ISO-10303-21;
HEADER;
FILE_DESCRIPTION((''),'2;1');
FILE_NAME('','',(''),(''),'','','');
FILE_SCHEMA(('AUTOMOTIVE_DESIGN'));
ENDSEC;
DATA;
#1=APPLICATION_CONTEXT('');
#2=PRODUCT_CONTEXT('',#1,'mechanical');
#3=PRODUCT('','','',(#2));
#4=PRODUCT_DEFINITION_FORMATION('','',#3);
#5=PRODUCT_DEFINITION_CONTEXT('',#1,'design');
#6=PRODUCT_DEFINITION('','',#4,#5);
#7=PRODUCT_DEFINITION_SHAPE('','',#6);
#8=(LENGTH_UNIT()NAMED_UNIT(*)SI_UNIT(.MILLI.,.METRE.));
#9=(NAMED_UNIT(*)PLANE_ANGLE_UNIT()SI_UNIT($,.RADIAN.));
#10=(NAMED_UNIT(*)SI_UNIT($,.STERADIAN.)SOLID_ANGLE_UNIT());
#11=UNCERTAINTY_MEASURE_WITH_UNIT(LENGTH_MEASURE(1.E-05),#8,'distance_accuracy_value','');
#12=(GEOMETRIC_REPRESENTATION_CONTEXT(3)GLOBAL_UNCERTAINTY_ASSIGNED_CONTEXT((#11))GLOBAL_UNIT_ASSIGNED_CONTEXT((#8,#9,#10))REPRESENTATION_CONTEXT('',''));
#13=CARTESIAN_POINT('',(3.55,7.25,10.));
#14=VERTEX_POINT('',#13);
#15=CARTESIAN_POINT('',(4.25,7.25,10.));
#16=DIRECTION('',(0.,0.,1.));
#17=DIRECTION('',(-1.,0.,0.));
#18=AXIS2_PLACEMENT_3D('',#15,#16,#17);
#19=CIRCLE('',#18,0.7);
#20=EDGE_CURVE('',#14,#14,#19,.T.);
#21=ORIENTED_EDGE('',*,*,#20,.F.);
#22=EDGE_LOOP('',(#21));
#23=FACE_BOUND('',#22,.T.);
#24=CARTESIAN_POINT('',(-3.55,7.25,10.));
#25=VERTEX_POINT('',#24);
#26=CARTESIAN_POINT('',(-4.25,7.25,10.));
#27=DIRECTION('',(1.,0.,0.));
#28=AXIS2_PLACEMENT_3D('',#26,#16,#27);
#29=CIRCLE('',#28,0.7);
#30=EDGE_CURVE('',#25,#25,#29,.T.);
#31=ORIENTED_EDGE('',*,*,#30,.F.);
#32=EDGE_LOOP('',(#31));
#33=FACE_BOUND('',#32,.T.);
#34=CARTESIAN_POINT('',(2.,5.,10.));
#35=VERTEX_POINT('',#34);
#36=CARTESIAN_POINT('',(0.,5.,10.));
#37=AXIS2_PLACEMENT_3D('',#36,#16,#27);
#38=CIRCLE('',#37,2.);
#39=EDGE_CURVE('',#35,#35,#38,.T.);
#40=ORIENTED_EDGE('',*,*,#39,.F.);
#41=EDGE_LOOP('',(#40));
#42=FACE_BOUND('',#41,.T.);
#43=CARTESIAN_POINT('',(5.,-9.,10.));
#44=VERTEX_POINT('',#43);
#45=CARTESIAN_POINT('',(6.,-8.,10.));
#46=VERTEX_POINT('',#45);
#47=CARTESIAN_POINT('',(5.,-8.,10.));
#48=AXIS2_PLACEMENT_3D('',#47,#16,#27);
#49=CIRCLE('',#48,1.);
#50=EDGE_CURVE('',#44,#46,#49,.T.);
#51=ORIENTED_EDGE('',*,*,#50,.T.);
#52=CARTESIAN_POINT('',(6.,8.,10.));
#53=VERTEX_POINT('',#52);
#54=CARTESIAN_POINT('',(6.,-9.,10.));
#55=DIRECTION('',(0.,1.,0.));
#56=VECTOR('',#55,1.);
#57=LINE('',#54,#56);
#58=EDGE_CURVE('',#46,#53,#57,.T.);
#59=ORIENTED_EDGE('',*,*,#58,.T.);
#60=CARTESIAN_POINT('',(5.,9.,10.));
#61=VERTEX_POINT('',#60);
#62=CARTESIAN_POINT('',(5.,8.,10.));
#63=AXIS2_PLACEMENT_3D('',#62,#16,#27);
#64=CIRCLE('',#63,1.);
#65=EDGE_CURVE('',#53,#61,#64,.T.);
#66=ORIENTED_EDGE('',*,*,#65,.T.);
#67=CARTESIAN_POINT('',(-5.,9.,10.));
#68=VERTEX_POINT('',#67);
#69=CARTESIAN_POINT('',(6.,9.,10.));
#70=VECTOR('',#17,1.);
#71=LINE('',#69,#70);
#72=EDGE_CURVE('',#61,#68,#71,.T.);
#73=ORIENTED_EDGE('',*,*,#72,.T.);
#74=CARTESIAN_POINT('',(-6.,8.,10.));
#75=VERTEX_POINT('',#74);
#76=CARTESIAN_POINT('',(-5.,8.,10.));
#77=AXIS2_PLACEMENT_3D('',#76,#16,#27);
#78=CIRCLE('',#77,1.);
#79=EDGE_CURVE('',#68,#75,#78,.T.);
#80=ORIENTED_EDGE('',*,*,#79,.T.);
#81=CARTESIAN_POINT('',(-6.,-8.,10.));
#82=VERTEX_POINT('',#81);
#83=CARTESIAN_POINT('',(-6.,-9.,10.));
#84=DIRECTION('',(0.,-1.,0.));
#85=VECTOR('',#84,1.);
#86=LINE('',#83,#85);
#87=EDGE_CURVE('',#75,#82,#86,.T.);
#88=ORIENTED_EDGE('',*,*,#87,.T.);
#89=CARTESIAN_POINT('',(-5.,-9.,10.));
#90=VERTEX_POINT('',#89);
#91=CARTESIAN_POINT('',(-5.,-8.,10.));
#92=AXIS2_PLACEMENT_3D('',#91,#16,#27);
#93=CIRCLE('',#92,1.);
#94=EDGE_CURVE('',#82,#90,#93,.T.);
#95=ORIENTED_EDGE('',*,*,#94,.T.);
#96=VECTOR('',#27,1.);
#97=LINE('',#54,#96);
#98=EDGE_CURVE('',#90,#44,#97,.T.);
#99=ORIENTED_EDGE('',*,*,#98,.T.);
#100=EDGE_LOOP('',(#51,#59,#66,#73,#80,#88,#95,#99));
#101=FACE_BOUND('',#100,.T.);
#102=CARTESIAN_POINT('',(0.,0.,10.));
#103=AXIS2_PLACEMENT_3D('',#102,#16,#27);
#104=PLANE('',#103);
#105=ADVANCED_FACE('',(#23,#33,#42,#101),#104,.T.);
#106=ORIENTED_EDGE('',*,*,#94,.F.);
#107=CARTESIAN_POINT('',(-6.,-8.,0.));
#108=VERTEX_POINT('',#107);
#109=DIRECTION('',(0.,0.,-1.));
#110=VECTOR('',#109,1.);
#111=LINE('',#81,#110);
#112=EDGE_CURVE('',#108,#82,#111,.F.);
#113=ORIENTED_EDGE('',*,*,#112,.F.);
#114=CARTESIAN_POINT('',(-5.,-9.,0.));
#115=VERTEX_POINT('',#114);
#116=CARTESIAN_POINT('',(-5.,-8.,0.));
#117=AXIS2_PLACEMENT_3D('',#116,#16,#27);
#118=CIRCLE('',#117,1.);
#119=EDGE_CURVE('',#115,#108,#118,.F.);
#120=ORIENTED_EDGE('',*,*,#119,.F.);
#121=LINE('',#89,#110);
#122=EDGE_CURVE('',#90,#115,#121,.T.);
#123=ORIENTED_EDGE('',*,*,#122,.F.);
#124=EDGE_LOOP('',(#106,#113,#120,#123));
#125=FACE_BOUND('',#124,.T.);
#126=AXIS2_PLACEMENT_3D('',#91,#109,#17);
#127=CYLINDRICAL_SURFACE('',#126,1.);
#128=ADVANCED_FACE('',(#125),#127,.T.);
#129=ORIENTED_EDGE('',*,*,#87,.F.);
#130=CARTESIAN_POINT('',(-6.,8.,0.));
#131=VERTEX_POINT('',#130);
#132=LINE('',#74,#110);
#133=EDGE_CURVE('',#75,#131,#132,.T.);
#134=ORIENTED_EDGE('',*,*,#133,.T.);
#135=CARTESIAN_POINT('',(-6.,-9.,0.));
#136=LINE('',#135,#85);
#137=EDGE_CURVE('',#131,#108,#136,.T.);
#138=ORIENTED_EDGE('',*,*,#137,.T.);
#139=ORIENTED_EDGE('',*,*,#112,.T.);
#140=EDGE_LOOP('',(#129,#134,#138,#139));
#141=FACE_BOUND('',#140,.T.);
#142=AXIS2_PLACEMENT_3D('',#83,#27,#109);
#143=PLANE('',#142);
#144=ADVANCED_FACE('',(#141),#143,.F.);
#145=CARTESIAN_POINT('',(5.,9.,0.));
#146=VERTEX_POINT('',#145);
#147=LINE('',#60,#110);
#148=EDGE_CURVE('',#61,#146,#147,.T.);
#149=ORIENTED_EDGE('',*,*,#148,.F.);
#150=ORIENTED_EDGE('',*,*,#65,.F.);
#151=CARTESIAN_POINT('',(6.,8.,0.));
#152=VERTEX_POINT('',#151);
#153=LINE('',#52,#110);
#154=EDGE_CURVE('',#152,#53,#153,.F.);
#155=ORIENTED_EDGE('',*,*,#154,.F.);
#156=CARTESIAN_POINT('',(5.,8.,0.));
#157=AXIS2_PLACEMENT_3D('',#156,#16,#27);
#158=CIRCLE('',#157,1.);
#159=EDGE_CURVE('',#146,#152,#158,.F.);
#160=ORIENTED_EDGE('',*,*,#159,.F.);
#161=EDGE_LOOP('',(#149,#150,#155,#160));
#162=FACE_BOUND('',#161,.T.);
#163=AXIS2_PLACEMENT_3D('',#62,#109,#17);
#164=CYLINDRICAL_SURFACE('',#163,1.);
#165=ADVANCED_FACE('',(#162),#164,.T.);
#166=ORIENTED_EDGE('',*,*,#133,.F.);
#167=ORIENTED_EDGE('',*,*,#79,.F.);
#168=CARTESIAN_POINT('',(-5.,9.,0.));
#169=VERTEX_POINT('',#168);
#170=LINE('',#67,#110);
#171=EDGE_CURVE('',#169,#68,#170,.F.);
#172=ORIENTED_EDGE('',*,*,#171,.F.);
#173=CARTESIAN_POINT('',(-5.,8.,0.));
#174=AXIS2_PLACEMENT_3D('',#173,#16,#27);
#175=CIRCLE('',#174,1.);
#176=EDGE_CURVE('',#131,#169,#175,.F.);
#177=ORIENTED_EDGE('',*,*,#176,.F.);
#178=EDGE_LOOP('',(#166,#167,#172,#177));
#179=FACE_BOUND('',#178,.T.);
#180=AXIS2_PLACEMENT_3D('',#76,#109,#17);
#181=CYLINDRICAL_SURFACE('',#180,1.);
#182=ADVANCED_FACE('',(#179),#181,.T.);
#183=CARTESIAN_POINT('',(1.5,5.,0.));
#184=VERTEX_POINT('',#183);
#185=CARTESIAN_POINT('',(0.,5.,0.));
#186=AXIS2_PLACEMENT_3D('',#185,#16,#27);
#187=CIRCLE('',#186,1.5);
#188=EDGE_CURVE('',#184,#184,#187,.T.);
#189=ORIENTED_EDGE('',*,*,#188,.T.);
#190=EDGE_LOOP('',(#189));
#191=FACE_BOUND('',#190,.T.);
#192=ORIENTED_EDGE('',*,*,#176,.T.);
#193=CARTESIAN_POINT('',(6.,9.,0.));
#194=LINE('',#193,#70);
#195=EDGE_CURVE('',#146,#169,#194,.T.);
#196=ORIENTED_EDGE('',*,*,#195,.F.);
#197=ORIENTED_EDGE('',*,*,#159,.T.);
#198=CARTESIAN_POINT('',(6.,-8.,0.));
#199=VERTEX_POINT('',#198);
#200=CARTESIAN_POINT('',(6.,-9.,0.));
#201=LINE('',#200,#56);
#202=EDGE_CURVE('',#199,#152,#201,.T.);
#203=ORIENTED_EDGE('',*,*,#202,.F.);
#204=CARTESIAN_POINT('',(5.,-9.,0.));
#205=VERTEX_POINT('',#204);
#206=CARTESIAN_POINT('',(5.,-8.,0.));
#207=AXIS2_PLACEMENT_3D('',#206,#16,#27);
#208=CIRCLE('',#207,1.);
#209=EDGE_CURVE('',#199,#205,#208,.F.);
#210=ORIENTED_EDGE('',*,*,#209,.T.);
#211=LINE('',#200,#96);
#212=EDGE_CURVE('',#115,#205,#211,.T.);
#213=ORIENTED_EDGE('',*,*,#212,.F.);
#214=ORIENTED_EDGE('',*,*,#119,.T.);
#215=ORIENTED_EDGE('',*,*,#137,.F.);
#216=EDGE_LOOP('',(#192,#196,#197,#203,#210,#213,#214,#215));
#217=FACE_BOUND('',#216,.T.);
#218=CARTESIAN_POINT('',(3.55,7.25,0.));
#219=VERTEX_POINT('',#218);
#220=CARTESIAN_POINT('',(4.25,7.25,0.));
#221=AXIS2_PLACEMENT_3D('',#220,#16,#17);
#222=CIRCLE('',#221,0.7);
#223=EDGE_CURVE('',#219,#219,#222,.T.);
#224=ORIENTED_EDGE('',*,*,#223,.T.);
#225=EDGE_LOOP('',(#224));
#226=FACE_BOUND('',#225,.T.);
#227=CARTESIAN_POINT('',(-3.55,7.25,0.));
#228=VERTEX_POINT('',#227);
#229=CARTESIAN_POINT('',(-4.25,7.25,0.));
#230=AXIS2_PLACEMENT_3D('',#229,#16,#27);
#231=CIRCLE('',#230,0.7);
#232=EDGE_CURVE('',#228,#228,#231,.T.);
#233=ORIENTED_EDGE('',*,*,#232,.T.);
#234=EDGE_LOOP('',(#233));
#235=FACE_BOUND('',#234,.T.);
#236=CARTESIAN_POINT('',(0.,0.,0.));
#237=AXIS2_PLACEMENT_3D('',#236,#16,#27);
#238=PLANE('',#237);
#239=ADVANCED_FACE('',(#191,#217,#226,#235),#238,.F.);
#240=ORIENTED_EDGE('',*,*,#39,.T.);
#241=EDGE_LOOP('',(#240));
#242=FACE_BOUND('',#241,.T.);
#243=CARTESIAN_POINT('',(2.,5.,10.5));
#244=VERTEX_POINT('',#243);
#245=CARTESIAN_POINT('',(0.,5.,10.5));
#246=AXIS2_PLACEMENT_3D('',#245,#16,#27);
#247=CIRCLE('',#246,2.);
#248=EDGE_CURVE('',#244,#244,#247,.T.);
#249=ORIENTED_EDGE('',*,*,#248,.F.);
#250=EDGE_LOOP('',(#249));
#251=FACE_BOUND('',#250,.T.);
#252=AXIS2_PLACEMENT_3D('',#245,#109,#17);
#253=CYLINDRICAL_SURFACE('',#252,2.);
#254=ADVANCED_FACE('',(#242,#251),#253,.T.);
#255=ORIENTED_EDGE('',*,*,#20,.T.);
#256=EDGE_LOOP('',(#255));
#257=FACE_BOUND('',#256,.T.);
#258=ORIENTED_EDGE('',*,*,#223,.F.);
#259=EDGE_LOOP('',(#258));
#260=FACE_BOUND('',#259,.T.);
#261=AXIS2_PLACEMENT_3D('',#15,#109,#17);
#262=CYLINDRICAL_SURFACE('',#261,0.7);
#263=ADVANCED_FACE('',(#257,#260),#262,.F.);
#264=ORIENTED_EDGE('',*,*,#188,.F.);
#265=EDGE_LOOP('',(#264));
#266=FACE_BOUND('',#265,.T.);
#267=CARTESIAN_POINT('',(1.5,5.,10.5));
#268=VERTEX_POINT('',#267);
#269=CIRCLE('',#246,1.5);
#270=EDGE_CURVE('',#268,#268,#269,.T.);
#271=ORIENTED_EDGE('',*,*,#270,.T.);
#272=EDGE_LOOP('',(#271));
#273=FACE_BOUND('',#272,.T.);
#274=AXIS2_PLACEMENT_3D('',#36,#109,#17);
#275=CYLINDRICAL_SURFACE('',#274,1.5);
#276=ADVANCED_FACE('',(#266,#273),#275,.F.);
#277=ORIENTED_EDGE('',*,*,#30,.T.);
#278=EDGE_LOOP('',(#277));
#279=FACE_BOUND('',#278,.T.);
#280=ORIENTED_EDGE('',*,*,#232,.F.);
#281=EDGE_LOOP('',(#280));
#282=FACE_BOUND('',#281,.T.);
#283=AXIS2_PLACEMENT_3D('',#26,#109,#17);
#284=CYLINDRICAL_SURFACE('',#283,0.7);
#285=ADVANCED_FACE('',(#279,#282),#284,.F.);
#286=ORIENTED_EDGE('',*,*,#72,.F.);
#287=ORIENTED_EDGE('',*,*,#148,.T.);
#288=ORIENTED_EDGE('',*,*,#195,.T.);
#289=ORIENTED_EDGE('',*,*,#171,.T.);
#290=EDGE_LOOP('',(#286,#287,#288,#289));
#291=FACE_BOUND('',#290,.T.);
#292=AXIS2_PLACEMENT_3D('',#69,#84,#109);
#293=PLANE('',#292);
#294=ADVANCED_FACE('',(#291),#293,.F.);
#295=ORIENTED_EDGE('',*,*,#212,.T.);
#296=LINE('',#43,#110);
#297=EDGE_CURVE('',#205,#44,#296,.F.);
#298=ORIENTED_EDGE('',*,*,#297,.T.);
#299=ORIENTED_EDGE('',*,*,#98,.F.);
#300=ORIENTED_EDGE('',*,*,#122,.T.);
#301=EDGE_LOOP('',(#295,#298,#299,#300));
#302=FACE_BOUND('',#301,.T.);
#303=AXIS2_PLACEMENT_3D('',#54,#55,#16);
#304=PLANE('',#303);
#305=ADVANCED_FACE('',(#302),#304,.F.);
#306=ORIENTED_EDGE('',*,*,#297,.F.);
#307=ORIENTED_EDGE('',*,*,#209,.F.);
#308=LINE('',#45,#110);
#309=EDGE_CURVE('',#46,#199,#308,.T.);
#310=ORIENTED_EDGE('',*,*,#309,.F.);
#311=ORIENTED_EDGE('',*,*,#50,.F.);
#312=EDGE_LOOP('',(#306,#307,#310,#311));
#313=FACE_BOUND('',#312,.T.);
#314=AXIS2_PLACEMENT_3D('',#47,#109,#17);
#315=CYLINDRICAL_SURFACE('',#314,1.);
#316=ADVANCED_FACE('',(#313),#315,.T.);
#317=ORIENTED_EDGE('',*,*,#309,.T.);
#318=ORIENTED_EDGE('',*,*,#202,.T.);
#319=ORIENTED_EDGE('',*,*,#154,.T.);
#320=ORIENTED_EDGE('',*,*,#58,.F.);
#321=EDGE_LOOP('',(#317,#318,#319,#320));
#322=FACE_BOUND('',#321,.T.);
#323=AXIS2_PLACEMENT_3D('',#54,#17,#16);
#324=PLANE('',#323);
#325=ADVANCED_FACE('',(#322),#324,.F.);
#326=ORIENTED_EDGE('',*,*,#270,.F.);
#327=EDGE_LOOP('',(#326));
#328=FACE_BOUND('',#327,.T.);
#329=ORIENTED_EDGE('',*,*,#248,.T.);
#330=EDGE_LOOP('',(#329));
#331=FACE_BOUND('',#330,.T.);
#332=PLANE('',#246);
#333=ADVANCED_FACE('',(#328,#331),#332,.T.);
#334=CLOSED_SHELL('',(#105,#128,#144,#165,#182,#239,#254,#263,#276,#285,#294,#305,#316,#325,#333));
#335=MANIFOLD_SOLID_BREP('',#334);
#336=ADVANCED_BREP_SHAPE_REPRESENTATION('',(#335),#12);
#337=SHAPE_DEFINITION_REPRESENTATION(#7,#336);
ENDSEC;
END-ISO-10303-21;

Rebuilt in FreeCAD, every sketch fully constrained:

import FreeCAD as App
import Part
import Sketcher
from FreeCAD import Vector
Q = App.Units.Quantity


def edges_at(feature, points):
    """Names of the edges that pass closest to the given points."""
    edges = feature.Shape.Edges
    near = lambda p: min(range(len(edges)), key=lambda i: edges[i].distToShape(Part.Vertex(*p))[0])
    return sorted({f"Edge{near(p) + 1}" for p in points})

doc = App.newDocument("Part")
body = doc.addObject("PartDesign::Body", "Body")

# Sketch on XY plane
sketch1 = doc.addObject("Sketcher::SketchObject", "Sketch")
body.addObject(sketch1)
sketch1.AttachmentSupport = (doc.XY_Plane, [""])
sketch1.MapMode = "FlatFace"
sketch1.addGeometry([
    Part.LineSegment(Vector(-6, 9, 0), Vector(-6, -9, 0)),  # 0
    Part.LineSegment(Vector(-6, -9, 0), Vector(6, -9, 0)),  # 1
    Part.LineSegment(Vector(6, -9, 0), Vector(6, 9, 0)),  # 2
    Part.LineSegment(Vector(6, 9, 0), Vector(-6, 9, 0)),  # 3
    Part.Circle(Vector(0, 5, 0), Vector(0, 0, 1), 1.5),  # 4
    Part.Circle(Vector(-4.2, 7.2, 0), Vector(0, 0, 1), 0.7),  # 5
    Part.Circle(Vector(4.2, 7.2, 0), Vector(0, 0, 1), 0.7),  # 6
], False)
sketch1.addConstraint([
    Sketcher.Constraint("Coincident", 0, 2, 1, 1),
    Sketcher.Constraint("Coincident", 1, 2, 2, 1),
    Sketcher.Constraint("Coincident", 2, 2, 3, 1),
    Sketcher.Constraint("Coincident", 3, 2, 0, 1),
    Sketcher.Constraint("Vertical", 0),
    Sketcher.Constraint("Horizontal", 1),
    Sketcher.Constraint("Vertical", 2),
    Sketcher.Constraint("Horizontal", 3),
    Sketcher.Constraint("Equal", 5, 6),
    Sketcher.Constraint("Symmetric", 0, 2, 2, 2, -1, 1),
    Sketcher.Constraint("Symmetric", 5, 3, 6, 3, -2),
    Sketcher.Constraint("PointOnObject", 4, 3, -2),
    Sketcher.Constraint("Diameter", 4, Q("3 mm")),
    Sketcher.Constraint("Diameter", 5, Q("1.4 mm")),
    Sketcher.Constraint("DistanceX", 1, 1, 1, 2, Q("12 mm")),
    Sketcher.Constraint("DistanceY", 0, 2, 0, 1, Q("18 mm")),
    Sketcher.Constraint("DistanceY", -1, 1, 4, 3, Q("5 mm")),
    Sketcher.Constraint("DistanceX", 5, 3, 6, 3, Q("8.5 mm")),
    Sketcher.Constraint("DistanceY", -1, 1, 5, 3, Q("7.25 mm")),
])
pad1 = doc.addObject("PartDesign::Pad", "Pad")
body.addObject(pad1)
pad1.Profile = sketch1
pad1.Length = 10

# Sketch on XY plane
sketch2 = doc.addObject("Sketcher::SketchObject", "Sketch001")
body.addObject(sketch2)
sketch2.AttachmentSupport = (doc.XY_Plane, [""])
sketch2.MapMode = "FlatFace"
sketch2.AttachmentOffset = App.Placement(Vector(0, 0, 10), App.Rotation())
sketch2.addGeometry([
    Part.Circle(Vector(0, 5, 0), Vector(0, 0, 1), 2),
    Part.Circle(Vector(0, 5, 0), Vector(0, 0, 1), 1.5),
], False)
sketch2.addConstraint([
    Sketcher.Constraint("Coincident", 1, 3, 0, 3),
    Sketcher.Constraint("PointOnObject", 0, 3, -2),
    Sketcher.Constraint("Diameter", 0, Q("4 mm")),
    Sketcher.Constraint("Diameter", 1, Q("3 mm")),
    Sketcher.Constraint("DistanceY", -1, 1, 0, 3, Q("5 mm")),
])
pad2 = doc.addObject("PartDesign::Pad", "Pad001")
body.addObject(pad2)
pad2.Profile = sketch2
pad2.Length = 0.5
doc.recompute()

fillet = doc.addObject("PartDesign::Fillet", "Fillet")
body.addObject(fillet)
fillet.Base = (pad2, edges_at(pad2, [
    (-6, 9, 5),
    (6, 9, 5),
    (6, -9, 5),
    (-6, -9, 5),
]))
fillet.Radius = 1

doc.recompute()
